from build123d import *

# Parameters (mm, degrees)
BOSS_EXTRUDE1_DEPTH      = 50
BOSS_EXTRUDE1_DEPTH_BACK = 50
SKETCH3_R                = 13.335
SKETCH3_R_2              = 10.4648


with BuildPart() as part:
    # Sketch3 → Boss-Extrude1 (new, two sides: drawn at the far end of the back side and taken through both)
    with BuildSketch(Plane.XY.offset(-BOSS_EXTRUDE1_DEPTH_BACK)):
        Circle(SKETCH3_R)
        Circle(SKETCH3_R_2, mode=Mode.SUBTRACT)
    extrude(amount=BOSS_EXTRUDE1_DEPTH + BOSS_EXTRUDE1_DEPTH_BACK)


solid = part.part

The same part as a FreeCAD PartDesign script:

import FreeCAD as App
import Part
import Sketcher
from FreeCAD import Vector
Q = App.Units.Quantity

doc = App.newDocument("Part")
body = doc.addObject("PartDesign::Body", "Body")

sketch1 = body.newObject("Sketcher::SketchObject", "Sketch")
sketch1.AttachmentSupport = (doc.getObject("XY_Plane"), [""])
sketch1.MapMode = "FlatFace"
sketch1.addGeometry([
    Part.Circle(Vector(0, 0, 0), Vector(0, 0, 1), 13),
    Part.Circle(Vector(0, 0, 0), Vector(0, 0, 1), 10),
], False)
sketch1.addConstraint([
    Sketcher.Constraint("Coincident", 0, 3, -1, 1),
    Sketcher.Constraint("Coincident", 1, 3, -1, 1),
    Sketcher.Constraint("Diameter", 0, Q("1.05 in")),
    Sketcher.Constraint("Diameter", 1, Q("0.824 in")),
])
pad1 = body.newObject("PartDesign::Pad", "Pad")
pad1.Profile = sketch1
pad1.Type = "TwoLengths"
pad1.Length = 50
pad1.Length2 = 50

doc.recompute()
